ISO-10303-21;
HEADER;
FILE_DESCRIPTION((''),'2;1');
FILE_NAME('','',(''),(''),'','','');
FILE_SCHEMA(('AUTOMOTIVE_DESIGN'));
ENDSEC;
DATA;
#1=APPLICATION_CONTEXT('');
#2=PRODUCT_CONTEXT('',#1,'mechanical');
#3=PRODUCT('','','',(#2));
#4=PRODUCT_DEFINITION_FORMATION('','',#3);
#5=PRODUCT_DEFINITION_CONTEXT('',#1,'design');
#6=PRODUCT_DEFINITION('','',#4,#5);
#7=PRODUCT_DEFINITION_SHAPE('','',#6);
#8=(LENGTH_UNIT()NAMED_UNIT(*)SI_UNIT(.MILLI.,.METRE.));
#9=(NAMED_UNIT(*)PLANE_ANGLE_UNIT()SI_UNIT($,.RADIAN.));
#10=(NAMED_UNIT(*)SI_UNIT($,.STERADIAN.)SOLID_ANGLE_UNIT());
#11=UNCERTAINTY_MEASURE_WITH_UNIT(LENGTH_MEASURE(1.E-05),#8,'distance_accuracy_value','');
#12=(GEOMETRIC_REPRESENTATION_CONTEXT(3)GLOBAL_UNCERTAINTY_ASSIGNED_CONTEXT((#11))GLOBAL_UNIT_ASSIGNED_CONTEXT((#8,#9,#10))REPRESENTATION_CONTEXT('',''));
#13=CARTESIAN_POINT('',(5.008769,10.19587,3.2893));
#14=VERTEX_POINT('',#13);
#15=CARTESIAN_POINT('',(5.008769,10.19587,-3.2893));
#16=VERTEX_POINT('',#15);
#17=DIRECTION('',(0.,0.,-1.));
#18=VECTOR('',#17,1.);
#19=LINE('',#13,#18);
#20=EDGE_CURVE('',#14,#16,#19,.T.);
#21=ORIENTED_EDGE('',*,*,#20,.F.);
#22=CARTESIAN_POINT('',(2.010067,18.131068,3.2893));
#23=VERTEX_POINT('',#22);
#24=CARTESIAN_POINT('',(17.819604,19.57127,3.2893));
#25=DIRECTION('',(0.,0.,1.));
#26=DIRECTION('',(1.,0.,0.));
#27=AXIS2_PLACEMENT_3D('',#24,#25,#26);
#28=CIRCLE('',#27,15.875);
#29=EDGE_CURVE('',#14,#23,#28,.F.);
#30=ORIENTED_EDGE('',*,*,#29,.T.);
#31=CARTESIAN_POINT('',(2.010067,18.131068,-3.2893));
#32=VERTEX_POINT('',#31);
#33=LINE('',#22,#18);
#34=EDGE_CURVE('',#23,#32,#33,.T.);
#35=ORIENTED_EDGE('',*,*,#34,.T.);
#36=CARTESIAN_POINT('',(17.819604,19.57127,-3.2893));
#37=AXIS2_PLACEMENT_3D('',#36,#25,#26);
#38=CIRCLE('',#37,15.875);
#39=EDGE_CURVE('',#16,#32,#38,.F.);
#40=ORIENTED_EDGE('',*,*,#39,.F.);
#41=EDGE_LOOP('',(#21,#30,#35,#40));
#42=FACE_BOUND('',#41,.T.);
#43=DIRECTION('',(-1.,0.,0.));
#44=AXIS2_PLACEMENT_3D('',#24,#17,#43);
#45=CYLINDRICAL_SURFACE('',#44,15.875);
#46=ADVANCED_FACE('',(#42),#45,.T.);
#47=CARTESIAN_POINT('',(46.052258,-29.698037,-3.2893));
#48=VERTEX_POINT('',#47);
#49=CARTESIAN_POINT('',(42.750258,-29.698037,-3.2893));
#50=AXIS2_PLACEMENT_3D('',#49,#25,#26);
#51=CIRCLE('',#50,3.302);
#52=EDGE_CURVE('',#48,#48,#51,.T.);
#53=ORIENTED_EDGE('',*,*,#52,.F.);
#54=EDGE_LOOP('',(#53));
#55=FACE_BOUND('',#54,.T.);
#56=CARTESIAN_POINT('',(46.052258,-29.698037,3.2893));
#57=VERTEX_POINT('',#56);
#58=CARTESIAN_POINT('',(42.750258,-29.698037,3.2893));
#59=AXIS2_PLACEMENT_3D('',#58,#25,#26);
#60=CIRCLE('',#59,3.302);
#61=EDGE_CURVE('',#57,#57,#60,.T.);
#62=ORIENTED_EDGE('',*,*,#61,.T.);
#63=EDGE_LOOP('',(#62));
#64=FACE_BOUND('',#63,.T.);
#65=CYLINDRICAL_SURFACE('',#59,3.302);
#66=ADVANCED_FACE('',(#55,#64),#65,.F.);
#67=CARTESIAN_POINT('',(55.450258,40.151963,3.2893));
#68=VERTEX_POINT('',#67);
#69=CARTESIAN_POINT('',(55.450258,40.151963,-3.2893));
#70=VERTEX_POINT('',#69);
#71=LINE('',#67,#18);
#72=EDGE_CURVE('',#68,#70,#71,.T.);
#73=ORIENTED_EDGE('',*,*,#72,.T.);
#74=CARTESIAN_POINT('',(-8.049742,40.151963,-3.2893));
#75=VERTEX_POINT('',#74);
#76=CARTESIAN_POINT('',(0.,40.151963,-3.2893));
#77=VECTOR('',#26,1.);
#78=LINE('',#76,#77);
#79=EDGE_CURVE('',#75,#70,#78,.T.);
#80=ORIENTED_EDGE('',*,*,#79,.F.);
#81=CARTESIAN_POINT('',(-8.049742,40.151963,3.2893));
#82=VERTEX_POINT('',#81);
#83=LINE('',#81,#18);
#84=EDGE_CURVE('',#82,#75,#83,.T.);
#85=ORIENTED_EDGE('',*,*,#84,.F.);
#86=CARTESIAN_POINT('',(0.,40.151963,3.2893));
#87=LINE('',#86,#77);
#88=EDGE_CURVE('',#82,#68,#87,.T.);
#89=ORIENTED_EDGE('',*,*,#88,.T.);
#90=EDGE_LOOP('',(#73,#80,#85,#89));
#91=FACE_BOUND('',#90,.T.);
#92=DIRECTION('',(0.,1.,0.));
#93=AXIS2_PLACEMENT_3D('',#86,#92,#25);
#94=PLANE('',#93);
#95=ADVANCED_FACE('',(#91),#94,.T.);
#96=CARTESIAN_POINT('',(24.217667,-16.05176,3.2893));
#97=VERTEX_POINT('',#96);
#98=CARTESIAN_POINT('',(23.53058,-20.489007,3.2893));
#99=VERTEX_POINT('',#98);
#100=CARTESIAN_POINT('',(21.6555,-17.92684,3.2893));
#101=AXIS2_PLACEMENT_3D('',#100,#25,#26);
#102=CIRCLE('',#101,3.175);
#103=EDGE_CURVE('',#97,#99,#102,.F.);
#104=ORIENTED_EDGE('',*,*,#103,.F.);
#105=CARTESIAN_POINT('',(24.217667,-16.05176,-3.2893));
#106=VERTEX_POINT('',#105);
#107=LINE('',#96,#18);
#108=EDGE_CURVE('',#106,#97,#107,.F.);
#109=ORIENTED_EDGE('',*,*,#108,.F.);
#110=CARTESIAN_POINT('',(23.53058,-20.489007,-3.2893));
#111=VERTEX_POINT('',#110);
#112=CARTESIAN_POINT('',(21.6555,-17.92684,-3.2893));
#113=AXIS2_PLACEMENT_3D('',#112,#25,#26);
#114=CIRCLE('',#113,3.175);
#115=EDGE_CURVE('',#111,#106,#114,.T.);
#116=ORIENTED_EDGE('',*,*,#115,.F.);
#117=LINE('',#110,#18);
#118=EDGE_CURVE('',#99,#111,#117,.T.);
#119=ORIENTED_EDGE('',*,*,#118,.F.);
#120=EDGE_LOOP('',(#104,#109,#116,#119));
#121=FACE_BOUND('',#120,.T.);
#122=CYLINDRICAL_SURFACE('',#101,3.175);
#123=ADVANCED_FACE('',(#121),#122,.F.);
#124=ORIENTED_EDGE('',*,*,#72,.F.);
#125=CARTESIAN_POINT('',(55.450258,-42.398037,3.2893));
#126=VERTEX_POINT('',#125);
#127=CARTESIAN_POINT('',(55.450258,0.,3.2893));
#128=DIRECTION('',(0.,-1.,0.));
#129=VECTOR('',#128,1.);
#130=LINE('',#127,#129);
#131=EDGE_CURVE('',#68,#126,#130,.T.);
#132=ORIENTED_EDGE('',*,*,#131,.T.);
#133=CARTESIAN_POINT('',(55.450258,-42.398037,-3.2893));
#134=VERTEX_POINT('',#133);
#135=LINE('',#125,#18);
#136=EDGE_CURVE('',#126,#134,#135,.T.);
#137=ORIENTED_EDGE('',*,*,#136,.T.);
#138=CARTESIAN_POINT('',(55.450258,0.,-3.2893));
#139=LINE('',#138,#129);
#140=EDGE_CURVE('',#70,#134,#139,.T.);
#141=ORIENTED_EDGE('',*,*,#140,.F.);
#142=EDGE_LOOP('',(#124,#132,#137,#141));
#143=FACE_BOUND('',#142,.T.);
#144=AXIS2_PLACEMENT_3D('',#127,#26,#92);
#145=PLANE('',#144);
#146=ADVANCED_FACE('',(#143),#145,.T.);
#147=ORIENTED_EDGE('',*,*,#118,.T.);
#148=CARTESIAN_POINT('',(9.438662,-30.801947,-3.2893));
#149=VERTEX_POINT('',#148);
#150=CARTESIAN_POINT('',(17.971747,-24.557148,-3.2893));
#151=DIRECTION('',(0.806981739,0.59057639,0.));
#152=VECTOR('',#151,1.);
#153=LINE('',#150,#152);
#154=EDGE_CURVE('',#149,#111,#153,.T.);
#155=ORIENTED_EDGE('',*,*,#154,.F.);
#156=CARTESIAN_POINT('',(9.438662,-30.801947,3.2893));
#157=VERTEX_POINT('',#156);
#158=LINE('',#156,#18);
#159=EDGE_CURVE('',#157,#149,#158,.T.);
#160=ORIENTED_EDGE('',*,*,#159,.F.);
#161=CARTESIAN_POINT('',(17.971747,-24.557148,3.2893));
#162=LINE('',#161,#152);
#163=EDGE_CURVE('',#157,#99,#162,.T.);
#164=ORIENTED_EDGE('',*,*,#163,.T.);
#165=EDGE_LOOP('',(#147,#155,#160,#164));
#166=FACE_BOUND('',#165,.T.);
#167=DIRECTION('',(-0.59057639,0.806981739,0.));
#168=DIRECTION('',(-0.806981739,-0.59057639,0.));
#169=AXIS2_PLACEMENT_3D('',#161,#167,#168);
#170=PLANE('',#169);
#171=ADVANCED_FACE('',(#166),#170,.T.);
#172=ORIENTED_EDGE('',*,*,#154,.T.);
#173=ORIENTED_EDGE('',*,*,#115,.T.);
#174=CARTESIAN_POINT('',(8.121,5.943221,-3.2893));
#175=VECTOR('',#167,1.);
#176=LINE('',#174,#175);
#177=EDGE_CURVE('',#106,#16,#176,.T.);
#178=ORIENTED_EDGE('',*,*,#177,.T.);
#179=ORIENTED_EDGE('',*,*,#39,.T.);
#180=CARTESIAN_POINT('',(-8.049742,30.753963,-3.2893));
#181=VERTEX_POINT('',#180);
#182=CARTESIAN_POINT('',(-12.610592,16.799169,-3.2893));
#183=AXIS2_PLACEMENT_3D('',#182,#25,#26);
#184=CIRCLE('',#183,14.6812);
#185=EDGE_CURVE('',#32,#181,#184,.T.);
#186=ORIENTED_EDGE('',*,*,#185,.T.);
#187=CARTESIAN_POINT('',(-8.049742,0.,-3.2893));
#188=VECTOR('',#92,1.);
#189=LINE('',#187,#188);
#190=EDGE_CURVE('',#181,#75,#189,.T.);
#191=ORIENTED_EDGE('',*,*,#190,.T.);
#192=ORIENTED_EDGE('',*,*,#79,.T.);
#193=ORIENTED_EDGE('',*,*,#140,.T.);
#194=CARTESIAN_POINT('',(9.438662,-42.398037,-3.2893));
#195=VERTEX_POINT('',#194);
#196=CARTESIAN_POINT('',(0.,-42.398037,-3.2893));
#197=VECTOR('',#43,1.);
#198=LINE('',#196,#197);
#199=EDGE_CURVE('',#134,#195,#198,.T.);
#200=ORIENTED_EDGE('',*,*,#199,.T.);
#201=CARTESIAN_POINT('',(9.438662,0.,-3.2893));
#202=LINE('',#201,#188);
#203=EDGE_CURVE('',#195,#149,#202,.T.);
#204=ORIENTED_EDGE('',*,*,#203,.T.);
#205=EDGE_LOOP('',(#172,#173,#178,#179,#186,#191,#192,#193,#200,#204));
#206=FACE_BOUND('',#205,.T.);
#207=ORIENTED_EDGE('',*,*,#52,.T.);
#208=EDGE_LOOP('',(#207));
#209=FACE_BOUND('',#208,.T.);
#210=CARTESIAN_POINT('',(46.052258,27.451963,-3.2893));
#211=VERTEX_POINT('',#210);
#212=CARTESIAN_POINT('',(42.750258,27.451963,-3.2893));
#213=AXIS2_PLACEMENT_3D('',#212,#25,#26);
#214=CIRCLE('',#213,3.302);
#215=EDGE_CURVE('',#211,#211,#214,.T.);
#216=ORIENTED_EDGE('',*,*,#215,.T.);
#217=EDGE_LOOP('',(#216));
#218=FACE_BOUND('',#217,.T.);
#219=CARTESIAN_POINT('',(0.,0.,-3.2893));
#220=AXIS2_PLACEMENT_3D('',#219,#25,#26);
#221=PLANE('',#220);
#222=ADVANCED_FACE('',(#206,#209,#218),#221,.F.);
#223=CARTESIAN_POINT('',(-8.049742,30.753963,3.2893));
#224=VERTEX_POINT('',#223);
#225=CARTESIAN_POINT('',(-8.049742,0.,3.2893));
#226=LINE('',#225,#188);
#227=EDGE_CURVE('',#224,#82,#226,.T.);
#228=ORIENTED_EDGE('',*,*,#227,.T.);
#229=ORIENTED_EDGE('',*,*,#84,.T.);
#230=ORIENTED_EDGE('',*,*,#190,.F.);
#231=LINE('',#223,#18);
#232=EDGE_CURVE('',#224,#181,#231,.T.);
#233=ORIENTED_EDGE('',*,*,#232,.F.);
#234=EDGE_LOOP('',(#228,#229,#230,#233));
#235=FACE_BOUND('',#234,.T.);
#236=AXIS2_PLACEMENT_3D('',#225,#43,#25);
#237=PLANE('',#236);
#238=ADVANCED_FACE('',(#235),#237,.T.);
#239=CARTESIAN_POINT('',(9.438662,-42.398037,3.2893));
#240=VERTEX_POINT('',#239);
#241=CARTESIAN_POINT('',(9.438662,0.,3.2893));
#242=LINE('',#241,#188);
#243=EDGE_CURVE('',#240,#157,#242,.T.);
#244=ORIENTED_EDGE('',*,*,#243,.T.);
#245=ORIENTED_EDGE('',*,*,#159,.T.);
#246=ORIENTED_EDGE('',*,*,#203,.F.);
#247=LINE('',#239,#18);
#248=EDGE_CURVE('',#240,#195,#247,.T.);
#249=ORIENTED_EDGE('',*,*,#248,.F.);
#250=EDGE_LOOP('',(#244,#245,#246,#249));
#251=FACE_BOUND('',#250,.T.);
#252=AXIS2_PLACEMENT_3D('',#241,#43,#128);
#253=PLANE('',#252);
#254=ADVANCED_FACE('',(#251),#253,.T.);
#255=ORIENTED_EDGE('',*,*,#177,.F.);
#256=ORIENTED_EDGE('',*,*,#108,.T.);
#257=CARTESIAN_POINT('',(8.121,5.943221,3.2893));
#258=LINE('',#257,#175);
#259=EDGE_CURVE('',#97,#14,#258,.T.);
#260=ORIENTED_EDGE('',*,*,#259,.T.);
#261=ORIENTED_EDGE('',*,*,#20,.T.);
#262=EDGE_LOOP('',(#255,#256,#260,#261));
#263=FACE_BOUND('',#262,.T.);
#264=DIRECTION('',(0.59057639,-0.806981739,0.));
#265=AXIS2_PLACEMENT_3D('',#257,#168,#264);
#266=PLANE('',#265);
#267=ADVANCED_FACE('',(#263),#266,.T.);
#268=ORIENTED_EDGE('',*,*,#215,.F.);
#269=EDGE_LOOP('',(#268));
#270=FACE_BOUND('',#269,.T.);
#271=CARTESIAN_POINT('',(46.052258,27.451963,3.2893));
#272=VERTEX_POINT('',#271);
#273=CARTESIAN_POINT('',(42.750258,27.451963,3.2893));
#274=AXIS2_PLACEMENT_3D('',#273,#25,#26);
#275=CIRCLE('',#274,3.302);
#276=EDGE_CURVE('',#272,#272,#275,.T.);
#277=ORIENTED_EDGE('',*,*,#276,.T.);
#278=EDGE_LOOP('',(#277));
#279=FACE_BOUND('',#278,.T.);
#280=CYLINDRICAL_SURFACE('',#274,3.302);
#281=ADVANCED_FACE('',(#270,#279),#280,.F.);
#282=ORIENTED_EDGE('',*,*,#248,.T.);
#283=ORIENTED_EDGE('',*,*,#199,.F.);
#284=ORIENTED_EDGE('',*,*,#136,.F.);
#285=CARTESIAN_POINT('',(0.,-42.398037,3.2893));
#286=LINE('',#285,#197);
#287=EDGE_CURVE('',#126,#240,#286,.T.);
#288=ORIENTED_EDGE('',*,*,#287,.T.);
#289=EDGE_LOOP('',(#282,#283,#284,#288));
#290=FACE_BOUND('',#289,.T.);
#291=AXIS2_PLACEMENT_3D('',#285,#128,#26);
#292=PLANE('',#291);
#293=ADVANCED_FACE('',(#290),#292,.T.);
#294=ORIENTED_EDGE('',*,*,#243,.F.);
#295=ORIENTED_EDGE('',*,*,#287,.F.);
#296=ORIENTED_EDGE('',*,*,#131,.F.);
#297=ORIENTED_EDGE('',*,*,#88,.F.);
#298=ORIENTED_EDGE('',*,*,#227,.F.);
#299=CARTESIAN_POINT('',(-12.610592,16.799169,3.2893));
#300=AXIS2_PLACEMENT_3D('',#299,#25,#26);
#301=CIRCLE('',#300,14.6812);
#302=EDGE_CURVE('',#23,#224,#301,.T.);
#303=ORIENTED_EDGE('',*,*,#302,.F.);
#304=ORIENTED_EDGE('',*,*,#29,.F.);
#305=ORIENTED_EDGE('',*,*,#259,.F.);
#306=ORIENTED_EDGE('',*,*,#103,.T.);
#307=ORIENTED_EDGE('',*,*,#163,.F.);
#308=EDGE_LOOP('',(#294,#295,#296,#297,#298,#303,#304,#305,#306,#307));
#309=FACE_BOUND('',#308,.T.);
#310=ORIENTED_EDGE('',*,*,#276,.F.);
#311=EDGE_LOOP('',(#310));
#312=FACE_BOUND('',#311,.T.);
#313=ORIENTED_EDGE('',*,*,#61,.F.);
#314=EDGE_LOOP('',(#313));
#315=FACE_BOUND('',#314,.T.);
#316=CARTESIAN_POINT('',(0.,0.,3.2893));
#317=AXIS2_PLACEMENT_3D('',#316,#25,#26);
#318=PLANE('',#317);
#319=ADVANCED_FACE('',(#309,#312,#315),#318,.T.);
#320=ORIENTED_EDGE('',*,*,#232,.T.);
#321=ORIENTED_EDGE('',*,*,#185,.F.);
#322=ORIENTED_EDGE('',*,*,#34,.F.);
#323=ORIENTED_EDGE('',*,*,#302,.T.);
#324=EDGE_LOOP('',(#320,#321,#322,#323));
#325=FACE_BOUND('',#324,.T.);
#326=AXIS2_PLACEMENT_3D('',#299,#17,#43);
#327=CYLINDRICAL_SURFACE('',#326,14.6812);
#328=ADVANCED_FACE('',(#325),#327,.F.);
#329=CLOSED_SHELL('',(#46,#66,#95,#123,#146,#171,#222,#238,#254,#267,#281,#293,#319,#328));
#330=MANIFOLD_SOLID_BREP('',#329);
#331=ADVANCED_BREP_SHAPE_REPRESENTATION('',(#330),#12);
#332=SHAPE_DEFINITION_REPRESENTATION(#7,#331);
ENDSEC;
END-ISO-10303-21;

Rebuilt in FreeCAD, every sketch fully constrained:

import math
import FreeCAD as App
import Part
import Sketcher
from FreeCAD import Vector
Q = App.Units.Quantity


def edges_at(feature, points):
    """Names of the edges that pass closest to the given points."""
    edges = feature.Shape.Edges
    near = lambda p: min(range(len(edges)), key=lambda i: edges[i].distToShape(Part.Vertex(*p))[0])
    return sorted({f"Edge{near(p) + 1}" for p in points})

doc = App.newDocument("Part")
params = doc.addObject("Spreadsheet::Sheet", "Params")
for row, (alias, value) in enumerate([
    ("sketch1_width", "2.5 in"),
    ("sketch1_radius", "0.578 in"),
    ("sketch1_radius2", "0.625 in"),
    ("sketch1_height", "3.25 in"),
    ("sketch1_height2", "0.37 in"),
    ("pad1_length", "0.259 in"),
    ("fillet_radius", "0.125 in"),
    ("sketch2_diameter", "0.26 in"),
    ("hole_diameter", "0.26 in"),
], start=1):
    params.set(f"A{row}", alias)
    params.set(f"B{row}", "=" + value)
    params.setAlias(f"B{row}", alias)

body = doc.addObject("PartDesign::Body", "Body")

sketch1 = body.newObject("Sketcher::SketchObject", "Sketch")
sketch1.AttachmentSupport = (doc.getObject("XY_Plane"), [""])
sketch1.MapMode = "FlatFace"
sketch1.addGeometry(Part.LineSegment(Vector(26, -19, 0), Vector(9, -31, 0)), False)
sketch1.addGeometry(Part.LineSegment(Vector(9, -31, 0), Vector(9, -42, 0)), False)
sketch1.addGeometry(Part.LineSegment(Vector(9, -42, 0), Vector(55, -42, 0)), False)
sketch1.addGeometry(Part.LineSegment(Vector(55, -42, 0), Vector(55, 40, 0)), False)
sketch1.addGeometry(Part.LineSegment(Vector(55, 40, 0), Vector(-8, 40, 0)), False)
sketch1.addGeometry(Part.LineSegment(Vector(-8, 40, 0), Vector(-8, 31, 0)), False)
sketch1.addGeometry(Part.ArcOfCircle(Part.Circle(Vector(-13, 17, 0), Vector(0, 0, 1), 15), math.radians(5), math.radians(72)), False)
sketch1.addGeometry(Part.ArcOfCircle(Part.Circle(Vector(18, 20, 0), Vector(0, 0, 1), 16), math.radians(-175), math.radians(-144)), False)
sketch1.addGeometry(Part.LineSegment(Vector(5, 10, 0), Vector(26, -19, 0)), False)
sketch1.addConstraint(Sketcher.Constraint("Coincident", 0, 2, 1, 1))
sketch1.addConstraint(Sketcher.Constraint("Coincident", 1, 2, 2, 1))
sketch1.addConstraint(Sketcher.Constraint("Coincident", 2, 2, 3, 1))
sketch1.addConstraint(Sketcher.Constraint("Coincident", 3, 2, 4, 1))
sketch1.addConstraint(Sketcher.Constraint("Coincident", 4, 2, 5, 1))
sketch1.addConstraint(Sketcher.Constraint("Coincident", 5, 2, 6, 2))
sketch1.addConstraint(Sketcher.Constraint("Tangent", 6, 1, 7, 1))
sketch1.addConstraint(Sketcher.Constraint("Tangent", 7, 2, 8, 1))
sketch1.addConstraint(Sketcher.Constraint("Coincident", 8, 2, 0, 1))
sketch1.addConstraint(Sketcher.Constraint("Vertical", 1))
sketch1.addConstraint(Sketcher.Constraint("Horizontal", 2))
sketch1.addConstraint(Sketcher.Constraint("Vertical", 3))
sketch1.addConstraint(Sketcher.Constraint("Horizontal", 4))
sketch1.addConstraint(Sketcher.Constraint("Vertical", 5))
sketch1.addConstraint(Sketcher.Constraint("Perpendicular", 0, 8))
sketch1.addConstraint(Sketcher.Constraint("DistanceX", 4, 2, 4, 1, Q("2.5 in")))
sketch1.addConstraint(Sketcher.Constraint("Radius", 6, Q("0.578 in")))
sketch1.addConstraint(Sketcher.Constraint("Radius", 7, Q("0.625 in")))
sketch1.addConstraint(Sketcher.Constraint("DistanceY", 3, 1, 3, 2, Q("3.25 in")))
sketch1.addConstraint(Sketcher.Constraint("DistanceY", 5, 2, 5, 1, Q("0.37 in")))
sketch1.addConstraint(Sketcher.Constraint("Distance", 0, Q("0.8125 in")))
sketch1.addConstraint(Sketcher.Constraint("DistanceY", 1, 2, 1, 1, 11.59609))
sketch1.addConstraint(Sketcher.Constraint("DistanceY", 6, 3, 7, 3, 2.772102))
sketch1.addConstraint(Sketcher.Constraint("DistanceX", 6, 1, 7, 2, 2.998701))
sketch1.addConstraint(Sketcher.Constraint("Distance", 8, 35.70068))
sketch1.addConstraint(Sketcher.Constraint("DistanceY", -1, 1, 6, 3, 16.799169))
sketch1.addConstraint(Sketcher.Constraint("DistanceX", -1, 1, 0, 2, 9.438662))
sketch1.setExpression("Constraints[15]", "Params.sketch1_width")
sketch1.setExpression("Constraints[16]", "Params.sketch1_radius")
sketch1.setExpression("Constraints[17]", "Params.sketch1_radius2")
sketch1.setExpression("Constraints[18]", "Params.sketch1_height")
sketch1.setExpression("Constraints[19]", "Params.sketch1_height2")
pad1 = body.newObject("PartDesign::Pad", "Pad")
pad1.Profile = sketch1
pad1.setExpression("Length", "Params.pad1_length")
pad1.Midplane = True
doc.recompute()

fillet = body.newObject("PartDesign::Fillet", "Fillet")
fillet.Base = (pad1, edges_at(pad1, [(26.093, -18.614, 0)]))
fillet.setExpression("Radius", "Params.fillet_radius")

sketch2 = body.newObject("Sketcher::SketchObject", "Sketch001")
sketch2.AttachmentSupport = (doc.getObject("XY_Plane"), [""])
sketch2.MapMode = "FlatFace"
sketch2.AttachmentOffset = App.Placement(Vector(0, 0, 0.1295 * 25.4), App.Rotation())
sketch2.addGeometry(Part.Circle(Vector(42.8, 27.5, 0), Vector(0, 0, 1), 3.3), False)
sketch2.addGeometry(Part.Circle(Vector(42.8, -29.7, 0), Vector(0, 0, 1), 3.3), False)
sketch2.addConstraint(Sketcher.Constraint("Equal", 0, 1))
sketch2.addConstraint(Sketcher.Constraint("Vertical", 0, 3, 1, 3))
sketch2.addConstraint(Sketcher.Constraint("Diameter", 0, Q("0.26 in")))
sketch2.addConstraint(Sketcher.Constraint("DistanceY", 1, 3, 0, 3, Q("2.25 in")))
sketch2.addConstraint(Sketcher.Constraint("DistanceX", -1, 1, 0, 3, 42.750258))
sketch2.addConstraint(Sketcher.Constraint("DistanceY", -1, 1, 0, 3, 27.451963))
sketch2.setExpression("Constraints[2]", "Params.sketch2_diameter")
doc.recompute()
hole = body.newObject("PartDesign::Hole", "Hole")
hole.Profile = sketch2
hole.ThreadType = "None"
hole.setExpression("Diameter", "Params.hole_diameter")
hole.DepthType = "ThroughAll"

doc.recompute()
